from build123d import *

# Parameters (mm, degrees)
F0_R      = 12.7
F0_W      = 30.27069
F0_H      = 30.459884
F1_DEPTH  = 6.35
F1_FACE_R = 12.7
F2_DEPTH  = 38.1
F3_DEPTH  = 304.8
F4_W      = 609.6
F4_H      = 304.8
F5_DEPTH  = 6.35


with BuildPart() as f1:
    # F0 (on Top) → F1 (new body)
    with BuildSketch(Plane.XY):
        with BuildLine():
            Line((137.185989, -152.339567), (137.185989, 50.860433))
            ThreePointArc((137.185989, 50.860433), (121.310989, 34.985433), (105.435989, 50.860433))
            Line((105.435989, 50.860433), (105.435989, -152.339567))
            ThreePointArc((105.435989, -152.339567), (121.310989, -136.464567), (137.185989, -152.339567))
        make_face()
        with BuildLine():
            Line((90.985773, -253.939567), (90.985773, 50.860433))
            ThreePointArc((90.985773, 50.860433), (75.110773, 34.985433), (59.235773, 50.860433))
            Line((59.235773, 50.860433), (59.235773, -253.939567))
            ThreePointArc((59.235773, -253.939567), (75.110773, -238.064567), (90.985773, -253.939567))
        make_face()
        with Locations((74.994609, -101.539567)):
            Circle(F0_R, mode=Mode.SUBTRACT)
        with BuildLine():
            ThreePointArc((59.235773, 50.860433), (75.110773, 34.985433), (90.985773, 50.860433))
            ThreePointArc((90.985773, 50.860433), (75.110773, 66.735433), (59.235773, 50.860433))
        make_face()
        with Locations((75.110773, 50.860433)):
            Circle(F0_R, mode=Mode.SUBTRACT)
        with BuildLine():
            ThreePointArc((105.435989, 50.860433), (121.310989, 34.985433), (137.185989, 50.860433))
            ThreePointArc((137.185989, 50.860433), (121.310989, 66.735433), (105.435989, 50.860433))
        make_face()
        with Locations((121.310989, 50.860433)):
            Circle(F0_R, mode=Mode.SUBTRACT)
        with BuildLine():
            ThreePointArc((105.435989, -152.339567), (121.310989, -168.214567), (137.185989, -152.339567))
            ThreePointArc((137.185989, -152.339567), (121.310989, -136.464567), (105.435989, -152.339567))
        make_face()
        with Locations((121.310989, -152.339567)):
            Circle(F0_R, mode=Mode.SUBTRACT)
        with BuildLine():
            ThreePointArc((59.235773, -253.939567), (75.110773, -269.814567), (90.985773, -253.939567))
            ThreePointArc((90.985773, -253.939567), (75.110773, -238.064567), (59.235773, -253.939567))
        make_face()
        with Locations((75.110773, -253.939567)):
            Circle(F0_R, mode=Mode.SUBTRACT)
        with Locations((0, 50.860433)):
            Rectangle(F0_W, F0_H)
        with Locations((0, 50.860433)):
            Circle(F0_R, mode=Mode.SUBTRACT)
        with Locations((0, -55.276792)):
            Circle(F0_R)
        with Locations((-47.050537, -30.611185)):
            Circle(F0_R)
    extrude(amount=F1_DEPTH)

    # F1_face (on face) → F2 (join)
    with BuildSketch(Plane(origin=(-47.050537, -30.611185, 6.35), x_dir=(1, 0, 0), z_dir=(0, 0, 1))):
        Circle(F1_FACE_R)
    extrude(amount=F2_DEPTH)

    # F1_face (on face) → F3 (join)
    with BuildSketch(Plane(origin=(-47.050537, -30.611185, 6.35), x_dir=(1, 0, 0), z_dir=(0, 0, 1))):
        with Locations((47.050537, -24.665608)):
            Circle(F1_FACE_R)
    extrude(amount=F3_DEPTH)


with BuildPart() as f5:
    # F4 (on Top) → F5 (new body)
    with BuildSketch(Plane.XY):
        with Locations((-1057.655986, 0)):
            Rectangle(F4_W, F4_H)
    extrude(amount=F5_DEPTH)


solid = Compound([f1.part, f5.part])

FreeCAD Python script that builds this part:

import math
import FreeCAD as App
import Part
import Sketcher
Q = App.Units.Quantity

doc = App.newDocument("Part")
body = doc.addObject("PartDesign::Body", "Body")
body.AllowCompound = True

sketch1 = body.newObject("Sketcher::SketchObject", "Sketch")
sketch1.AttachmentSupport = (doc.getObject("XY_Plane"), [""])
sketch1.MapMode = "FlatFace"
sketch1.addGeometry([
    Part.LineSegment(App.Vector(137, -152, 0), App.Vector(137, 51, 0)),
    Part.ArcOfCircle(Part.Circle(App.Vector(121, 51, 0), App.Vector(0, 0, 1), 16), math.radians(0), math.radians(180)),
    Part.LineSegment(App.Vector(105, 51, 0), App.Vector(105, -152, 0)),
    Part.ArcOfCircle(Part.Circle(App.Vector(121, -152, 0), App.Vector(0, 0, 1), 16), math.radians(180), math.radians(360)),
    Part.Circle(App.Vector(121, -152, 0), App.Vector(0, 0, 1), 13),
    Part.Circle(App.Vector(121, 51, 0), App.Vector(0, 0, 1), 13),
    Part.LineSegment(App.Vector(91, -254, 0), App.Vector(91, 51, 0)),
    Part.ArcOfCircle(Part.Circle(App.Vector(75, 51, 0), App.Vector(0, 0, 1), 16), math.radians(0), math.radians(180)),
    Part.LineSegment(App.Vector(59, 51, 0), App.Vector(59, -254, 0)),
    Part.ArcOfCircle(Part.Circle(App.Vector(75, -254, 0), App.Vector(0, 0, 1), 16), math.radians(180), math.radians(360)),
    Part.Circle(App.Vector(75, -254, 0), App.Vector(0, 0, 1), 13),
    Part.Circle(App.Vector(75, -102, 0), App.Vector(0, 0, 1), 13),
    Part.Circle(App.Vector(75, 51, 0), App.Vector(0, 0, 1), 13),
    Part.LineSegment(App.Vector(-15, 66, 0), App.Vector(-15, 36, 0)),
    Part.LineSegment(App.Vector(-15, 36, 0), App.Vector(15, 36, 0)),
    Part.LineSegment(App.Vector(15, 36, 0), App.Vector(15, 66, 0)),
    Part.LineSegment(App.Vector(15, 66, 0), App.Vector(-15, 66, 0)),
    Part.Circle(App.Vector(0, 51, 0), App.Vector(0, 0, 1), 13),
    Part.Circle(App.Vector(0, -55, 0), App.Vector(0, 0, 1), 13),
    Part.Circle(App.Vector(-47, -31, 0), App.Vector(0, 0, 1), 13),
], False)
sketch1.addConstraint([
    Sketcher.Constraint("Tangent", 0, 2, 1, 1),
    Sketcher.Constraint("Tangent", 1, 2, 2, 1),
    Sketcher.Constraint("Tangent", 2, 2, 3, 1),
    Sketcher.Constraint("Tangent", 3, 2, 0, 1),
    Sketcher.Constraint("Tangent", 6, 2, 7, 1),
    Sketcher.Constraint("Tangent", 7, 2, 8, 1),
    Sketcher.Constraint("Tangent", 8, 2, 9, 1),
    Sketcher.Constraint("Tangent", 9, 2, 6, 1),
    Sketcher.Constraint("Coincident", 13, 2, 14, 1),
    Sketcher.Constraint("Coincident", 14, 2, 15, 1),
    Sketcher.Constraint("Coincident", 15, 2, 16, 1),
    Sketcher.Constraint("Coincident", 16, 2, 13, 1),
    Sketcher.Constraint("Vertical", 0),
    Sketcher.Constraint("Vertical", 2),
    Sketcher.Constraint("Vertical", 6),
    Sketcher.Constraint("Vertical", 8),
    Sketcher.Constraint("Vertical", 13),
    Sketcher.Constraint("Horizontal", 14),
    Sketcher.Constraint("Vertical", 15),
    Sketcher.Constraint("Horizontal", 16),
    Sketcher.Constraint("Coincident", 4, 3, 3, 3),
    Sketcher.Constraint("Coincident", 5, 3, 1, 3),
    Sketcher.Constraint("Coincident", 10, 3, 9, 3),
    Sketcher.Constraint("Coincident", 12, 3, 7, 3),
    Sketcher.Constraint("Equal", 4, 5),
    Sketcher.Constraint("Equal", 3, 7),
    Sketcher.Constraint("Equal", 5, 10),
    Sketcher.Constraint("Equal", 10, 11),
    Sketcher.Constraint("Equal", 11, 12),
    Sketcher.Constraint("Equal", 12, 17),
    Sketcher.Constraint("Equal", 17, 18),
    Sketcher.Constraint("Equal", 18, 19),
    Sketcher.Constraint("PointOnObject", 17, 3, -2),
    Sketcher.Constraint("PointOnObject", 18, 3, -2),
    Sketcher.Constraint("Horizontal", 5, 3, 7, 3),
    Sketcher.Constraint("Horizontal", 12, 3, 17, 3),
    Sketcher.Constraint("Diameter", 4, Q("1 in")),
    Sketcher.Constraint("DistanceY", 0, 1, 0, 2, Q("8 in")),
    Sketcher.Constraint("DistanceY", 6, 1, 6, 2, Q("12 in")),
    Sketcher.Constraint("Radius", 1, Q("0.625 in")),
    Sketcher.Constraint("DistanceY", 3, 3, 11, 3, Q("2 in")),
    Sketcher.Constraint("DistanceX", 14, 1, 14, 2, 30.27069),
    Sketcher.Constraint("DistanceY", 13, 2, 13, 1, 30.459884),
    Sketcher.Constraint("DistanceX", -1, 1, 1, 3, 121.310989),
    Sketcher.Constraint("DistanceX", -1, 1, 11, 3, 74.994609),
    Sketcher.Constraint("DistanceY", -1, 1, 13, 2, 35.630491),
    Sketcher.Constraint("DistanceY", 19, 3, 17, 3, 81.471618),
    Sketcher.Constraint("DistanceX", 19, 3, 7, 3, 122.16131),
    Sketcher.Constraint("DistanceX", 19, 3, 13, 2, 31.915192),
    Sketcher.Constraint("DistanceY", 17, 3, 15, 2, 15.229942),
    Sketcher.Constraint("DistanceX", -1, 1, 7, 3, 75.110773),
    Sketcher.Constraint("DistanceY", 18, 3, -1, 1, 55.276792),
])
pad1 = body.newObject("PartDesign::Pad", "Pad")
pad1.Profile = sketch1
pad1.Length = Q("0.25 in")

sketch2 = body.newObject("Sketcher::SketchObject", "Sketch001")
sketch2.AttachmentSupport = (doc.getObject("XY_Plane"), [""])
sketch2.MapMode = "FlatFace"
sketch2.AttachmentOffset = App.Placement(App.Vector(0, 0, 0.25 * 25.4), App.Rotation())
sketch2.addGeometry(Part.Circle(App.Vector(-47, -31, 0), App.Vector(0, 0, 1), 13), False)
sketch2.addConstraint([
    Sketcher.Constraint("Diameter", 0, Q("1 in")),
    Sketcher.Constraint("DistanceX", 0, 3, -1, 1, 47.050537),
    Sketcher.Constraint("DistanceY", 0, 3, -1, 1, 30.611185),
])
pad2 = body.newObject("PartDesign::Pad", "Pad001")
pad2.Profile = sketch2
pad2.Length = Q("1.5 in")

sketch3 = body.newObject("Sketcher::SketchObject", "Sketch002")
sketch3.AttachmentSupport = (doc.getObject("XY_Plane"), [""])
sketch3.MapMode = "FlatFace"
sketch3.AttachmentOffset = App.Placement(App.Vector(0, 0, 0.25 * 25.4), App.Rotation())
sketch3.addGeometry(Part.Circle(App.Vector(0, -55, 0), App.Vector(0, 0, 1), 13), False)
sketch3.addConstraint([
    Sketcher.Constraint("PointOnObject", 0, 3, -2),
    Sketcher.Constraint("Diameter", 0, Q("1 in")),
    Sketcher.Constraint("DistanceY", 0, 3, -1, 1, 55.276793),
])
pad3 = body.newObject("PartDesign::Pad", "Pad002")
pad3.Profile = sketch3
pad3.Length = Q("12 in")
body2 = doc.addObject("PartDesign::Body", "Body001")

sketch4 = body2.newObject("Sketcher::SketchObject", "Sketch003")
sketch4.AttachmentSupport = (doc.getObject("XY_Plane001"), [""])
sketch4.MapMode = "FlatFace"
sketch4.addGeometry([
    Part.LineSegment(App.Vector(-1362, 152, 0), App.Vector(-1362, -152, 0)),
    Part.LineSegment(App.Vector(-1362, -152, 0), App.Vector(-753, -152, 0)),
    Part.LineSegment(App.Vector(-753, -152, 0), App.Vector(-753, 152, 0)),
    Part.LineSegment(App.Vector(-753, 152, 0), App.Vector(-1362, 152, 0)),
], False)
sketch4.addConstraint([
    Sketcher.Constraint("Coincident", 0, 2, 1, 1),
    Sketcher.Constraint("Coincident", 1, 2, 2, 1),
    Sketcher.Constraint("Coincident", 2, 2, 3, 1),
    Sketcher.Constraint("Coincident", 3, 2, 0, 1),
    Sketcher.Constraint("Vertical", 0),
    Sketcher.Constraint("Horizontal", 1),
    Sketcher.Constraint("Vertical", 2),
    Sketcher.Constraint("Horizontal", 3),
    Sketcher.Constraint("DistanceX", 1, 1, 1, 2, Q("24 in")),
    Sketcher.Constraint("DistanceY", 0, 2, 0, 1, Q("12 in")),
    Sketcher.Constraint("DistanceY", 0, 2, -1, 1, Q("6 in")),
    Sketcher.Constraint("DistanceX", 0, 2, -1, 1, 1362.455986),
])
pad4 = body2.newObject("PartDesign::Pad", "Pad003")
pad4.Profile = sketch4
pad4.Length = Q("0.25 in")

doc.recompute()
